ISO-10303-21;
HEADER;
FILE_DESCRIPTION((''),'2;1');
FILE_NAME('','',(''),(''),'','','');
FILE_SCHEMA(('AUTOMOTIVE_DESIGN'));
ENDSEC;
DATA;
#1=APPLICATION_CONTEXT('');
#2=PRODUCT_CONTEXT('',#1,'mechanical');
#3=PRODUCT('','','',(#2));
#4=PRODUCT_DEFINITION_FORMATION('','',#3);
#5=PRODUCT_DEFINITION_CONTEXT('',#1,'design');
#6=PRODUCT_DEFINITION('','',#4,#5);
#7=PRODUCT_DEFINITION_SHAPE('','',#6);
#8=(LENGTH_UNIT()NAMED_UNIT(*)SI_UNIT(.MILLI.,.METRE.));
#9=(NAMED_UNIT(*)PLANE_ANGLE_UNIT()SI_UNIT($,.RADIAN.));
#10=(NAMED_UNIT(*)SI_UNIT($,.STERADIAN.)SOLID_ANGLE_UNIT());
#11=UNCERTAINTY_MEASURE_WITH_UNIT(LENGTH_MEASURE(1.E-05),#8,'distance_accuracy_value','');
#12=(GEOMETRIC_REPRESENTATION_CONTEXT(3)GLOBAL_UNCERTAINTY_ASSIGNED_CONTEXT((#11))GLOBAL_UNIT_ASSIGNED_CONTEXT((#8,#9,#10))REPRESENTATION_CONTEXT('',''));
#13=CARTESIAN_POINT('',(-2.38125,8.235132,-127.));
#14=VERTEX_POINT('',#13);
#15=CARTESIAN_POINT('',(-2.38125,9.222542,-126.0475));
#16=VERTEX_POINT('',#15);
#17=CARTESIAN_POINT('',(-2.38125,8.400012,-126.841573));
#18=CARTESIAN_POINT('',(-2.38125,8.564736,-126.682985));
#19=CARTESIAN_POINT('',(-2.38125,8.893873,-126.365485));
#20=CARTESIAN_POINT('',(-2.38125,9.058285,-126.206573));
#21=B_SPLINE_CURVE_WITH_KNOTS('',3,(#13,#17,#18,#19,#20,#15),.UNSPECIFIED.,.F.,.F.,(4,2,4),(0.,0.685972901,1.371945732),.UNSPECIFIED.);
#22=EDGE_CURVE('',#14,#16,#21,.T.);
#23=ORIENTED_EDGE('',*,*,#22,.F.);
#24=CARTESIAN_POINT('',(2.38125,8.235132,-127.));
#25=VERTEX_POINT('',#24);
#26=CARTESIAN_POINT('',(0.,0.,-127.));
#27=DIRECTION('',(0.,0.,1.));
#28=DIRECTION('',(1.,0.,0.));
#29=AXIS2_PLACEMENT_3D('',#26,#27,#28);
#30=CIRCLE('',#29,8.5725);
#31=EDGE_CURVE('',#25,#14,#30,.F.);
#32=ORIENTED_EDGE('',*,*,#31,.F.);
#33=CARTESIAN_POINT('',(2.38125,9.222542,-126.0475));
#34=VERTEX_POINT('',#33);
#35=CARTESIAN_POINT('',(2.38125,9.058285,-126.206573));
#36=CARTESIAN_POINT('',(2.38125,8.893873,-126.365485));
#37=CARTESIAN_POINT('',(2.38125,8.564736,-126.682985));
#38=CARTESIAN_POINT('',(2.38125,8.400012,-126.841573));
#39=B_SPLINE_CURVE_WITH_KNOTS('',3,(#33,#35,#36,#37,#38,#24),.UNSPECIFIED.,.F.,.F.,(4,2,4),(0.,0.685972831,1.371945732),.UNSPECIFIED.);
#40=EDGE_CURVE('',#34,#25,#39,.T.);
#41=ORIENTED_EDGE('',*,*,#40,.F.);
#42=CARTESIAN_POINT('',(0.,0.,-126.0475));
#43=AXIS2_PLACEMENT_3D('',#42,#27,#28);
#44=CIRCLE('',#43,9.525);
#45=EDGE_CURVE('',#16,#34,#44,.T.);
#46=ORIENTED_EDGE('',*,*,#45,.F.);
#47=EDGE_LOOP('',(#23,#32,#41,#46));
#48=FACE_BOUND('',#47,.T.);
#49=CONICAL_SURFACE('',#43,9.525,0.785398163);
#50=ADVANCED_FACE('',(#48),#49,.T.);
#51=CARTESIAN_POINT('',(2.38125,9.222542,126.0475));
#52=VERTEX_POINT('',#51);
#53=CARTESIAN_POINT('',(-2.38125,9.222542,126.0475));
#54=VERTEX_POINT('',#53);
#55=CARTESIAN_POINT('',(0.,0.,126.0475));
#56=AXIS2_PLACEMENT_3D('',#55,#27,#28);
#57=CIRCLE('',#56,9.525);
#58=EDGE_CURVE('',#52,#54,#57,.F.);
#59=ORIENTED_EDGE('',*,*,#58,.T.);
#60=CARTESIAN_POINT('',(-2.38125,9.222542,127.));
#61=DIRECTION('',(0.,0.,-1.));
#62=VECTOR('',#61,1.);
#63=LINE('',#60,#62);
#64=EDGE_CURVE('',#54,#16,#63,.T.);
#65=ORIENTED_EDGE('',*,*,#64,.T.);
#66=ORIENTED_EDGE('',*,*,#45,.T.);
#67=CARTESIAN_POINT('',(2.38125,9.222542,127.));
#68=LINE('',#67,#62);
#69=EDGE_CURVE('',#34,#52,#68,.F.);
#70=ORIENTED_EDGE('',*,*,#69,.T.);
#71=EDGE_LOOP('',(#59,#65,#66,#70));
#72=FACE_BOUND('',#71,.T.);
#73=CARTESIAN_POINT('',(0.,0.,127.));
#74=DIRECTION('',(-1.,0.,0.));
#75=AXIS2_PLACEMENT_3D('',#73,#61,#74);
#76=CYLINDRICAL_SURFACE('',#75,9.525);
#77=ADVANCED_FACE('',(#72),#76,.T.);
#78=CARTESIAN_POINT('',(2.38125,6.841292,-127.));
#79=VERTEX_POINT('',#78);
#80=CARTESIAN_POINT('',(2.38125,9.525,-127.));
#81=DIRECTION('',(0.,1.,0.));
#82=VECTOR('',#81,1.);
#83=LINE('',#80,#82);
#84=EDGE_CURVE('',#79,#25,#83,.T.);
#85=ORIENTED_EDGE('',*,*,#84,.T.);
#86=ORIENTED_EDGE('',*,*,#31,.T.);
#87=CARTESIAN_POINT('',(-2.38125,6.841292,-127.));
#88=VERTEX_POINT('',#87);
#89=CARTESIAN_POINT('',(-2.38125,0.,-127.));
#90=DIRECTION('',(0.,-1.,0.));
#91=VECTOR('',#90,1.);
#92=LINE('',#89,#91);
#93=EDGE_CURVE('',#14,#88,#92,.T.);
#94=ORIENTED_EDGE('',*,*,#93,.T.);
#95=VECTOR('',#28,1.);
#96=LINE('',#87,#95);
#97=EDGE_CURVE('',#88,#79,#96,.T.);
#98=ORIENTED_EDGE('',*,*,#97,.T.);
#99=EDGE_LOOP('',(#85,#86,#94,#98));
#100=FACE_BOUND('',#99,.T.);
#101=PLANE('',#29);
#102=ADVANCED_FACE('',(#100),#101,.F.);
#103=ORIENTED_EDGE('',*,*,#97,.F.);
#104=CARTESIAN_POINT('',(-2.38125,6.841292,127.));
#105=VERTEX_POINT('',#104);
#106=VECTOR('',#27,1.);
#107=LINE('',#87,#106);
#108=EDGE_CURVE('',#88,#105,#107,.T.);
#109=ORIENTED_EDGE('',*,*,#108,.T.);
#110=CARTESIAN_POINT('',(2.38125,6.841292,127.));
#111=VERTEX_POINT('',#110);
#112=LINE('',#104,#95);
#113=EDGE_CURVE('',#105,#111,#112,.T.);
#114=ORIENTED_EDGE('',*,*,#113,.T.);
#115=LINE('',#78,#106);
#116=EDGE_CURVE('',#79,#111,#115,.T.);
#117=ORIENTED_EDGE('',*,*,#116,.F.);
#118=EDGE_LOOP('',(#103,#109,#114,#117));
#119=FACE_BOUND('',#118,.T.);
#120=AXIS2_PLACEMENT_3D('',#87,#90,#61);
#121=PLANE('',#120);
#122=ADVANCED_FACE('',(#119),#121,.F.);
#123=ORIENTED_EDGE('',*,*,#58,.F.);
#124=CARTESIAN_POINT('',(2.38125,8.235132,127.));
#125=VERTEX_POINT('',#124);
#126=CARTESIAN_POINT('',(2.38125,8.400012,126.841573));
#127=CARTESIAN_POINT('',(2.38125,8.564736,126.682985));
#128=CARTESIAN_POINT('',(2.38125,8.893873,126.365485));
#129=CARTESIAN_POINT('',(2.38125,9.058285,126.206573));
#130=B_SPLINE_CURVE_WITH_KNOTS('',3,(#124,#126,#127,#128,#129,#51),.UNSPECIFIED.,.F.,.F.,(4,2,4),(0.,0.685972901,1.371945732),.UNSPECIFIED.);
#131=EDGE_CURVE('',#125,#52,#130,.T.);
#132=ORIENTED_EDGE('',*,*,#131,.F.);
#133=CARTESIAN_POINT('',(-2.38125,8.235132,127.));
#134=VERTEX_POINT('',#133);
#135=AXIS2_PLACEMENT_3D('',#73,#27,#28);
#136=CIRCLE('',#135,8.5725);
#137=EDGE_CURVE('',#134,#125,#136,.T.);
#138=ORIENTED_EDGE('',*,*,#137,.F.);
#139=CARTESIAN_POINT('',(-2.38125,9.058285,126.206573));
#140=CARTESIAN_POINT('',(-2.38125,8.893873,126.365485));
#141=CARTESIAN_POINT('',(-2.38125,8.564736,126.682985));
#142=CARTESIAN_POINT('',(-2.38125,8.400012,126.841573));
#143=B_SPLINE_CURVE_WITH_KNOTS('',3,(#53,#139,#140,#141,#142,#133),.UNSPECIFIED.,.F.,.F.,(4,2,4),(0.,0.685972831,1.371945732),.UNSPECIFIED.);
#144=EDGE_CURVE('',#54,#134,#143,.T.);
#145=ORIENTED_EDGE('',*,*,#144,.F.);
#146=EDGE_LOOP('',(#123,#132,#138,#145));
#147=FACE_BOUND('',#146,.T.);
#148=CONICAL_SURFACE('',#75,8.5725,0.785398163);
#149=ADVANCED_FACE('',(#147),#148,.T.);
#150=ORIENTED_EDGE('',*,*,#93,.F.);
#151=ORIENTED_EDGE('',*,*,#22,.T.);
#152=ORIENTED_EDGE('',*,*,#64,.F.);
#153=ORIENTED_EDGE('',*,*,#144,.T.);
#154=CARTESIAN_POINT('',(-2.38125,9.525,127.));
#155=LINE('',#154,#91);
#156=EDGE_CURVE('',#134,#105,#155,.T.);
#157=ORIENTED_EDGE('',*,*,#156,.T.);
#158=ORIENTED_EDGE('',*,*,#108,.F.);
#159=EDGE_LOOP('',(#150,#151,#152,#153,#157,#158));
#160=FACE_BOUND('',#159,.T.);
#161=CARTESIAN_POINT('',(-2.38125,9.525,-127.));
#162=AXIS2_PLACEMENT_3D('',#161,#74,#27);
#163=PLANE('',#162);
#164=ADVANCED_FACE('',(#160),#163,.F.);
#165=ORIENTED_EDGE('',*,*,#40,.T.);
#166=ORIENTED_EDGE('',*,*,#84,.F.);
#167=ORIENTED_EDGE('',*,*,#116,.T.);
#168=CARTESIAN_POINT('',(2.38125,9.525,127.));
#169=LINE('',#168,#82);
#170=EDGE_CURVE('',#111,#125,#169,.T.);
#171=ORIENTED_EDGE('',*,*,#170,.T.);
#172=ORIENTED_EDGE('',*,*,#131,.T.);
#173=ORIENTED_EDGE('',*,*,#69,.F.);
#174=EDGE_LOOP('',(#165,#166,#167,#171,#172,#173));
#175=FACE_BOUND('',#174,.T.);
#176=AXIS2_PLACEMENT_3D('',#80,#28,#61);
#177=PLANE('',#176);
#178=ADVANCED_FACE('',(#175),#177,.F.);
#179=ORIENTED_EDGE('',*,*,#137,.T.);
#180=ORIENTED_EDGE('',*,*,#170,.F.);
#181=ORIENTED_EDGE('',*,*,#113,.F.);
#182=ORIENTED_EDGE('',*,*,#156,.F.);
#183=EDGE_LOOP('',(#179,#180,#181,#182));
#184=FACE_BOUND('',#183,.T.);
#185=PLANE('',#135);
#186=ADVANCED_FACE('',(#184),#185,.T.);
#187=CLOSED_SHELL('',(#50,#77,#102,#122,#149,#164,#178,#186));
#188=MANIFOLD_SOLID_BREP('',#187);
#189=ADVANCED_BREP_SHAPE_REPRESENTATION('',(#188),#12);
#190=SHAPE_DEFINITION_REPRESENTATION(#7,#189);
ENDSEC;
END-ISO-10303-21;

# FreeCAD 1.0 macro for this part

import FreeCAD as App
import Part
import Sketcher

V = App.Vector
Q = App.Units.Quantity


def edges_at(feature, points):
    """Names of the edges that pass closest to the given points."""
    edges = feature.Shape.Edges
    near = lambda p: min(range(len(edges)), key=lambda i: edges[i].distToShape(Part.Vertex(*p))[0])
    return sorted({f"Edge{near(p) + 1}" for p in points})


def add_polygon(sketch, points):
    """Adds a closed chain of lines whose ends are joined by coincident constraints."""
    first, n = sketch.GeometryCount, len(points)
    for a, b in zip(points, points[1:] + points[:1]):
        sketch.addGeometry(Part.LineSegment(App.Vector(*a, 0), App.Vector(*b, 0)), False)
    for i in range(n):
        sketch.addConstraint(Sketcher.Constraint("Coincident", first + i, 2, first + (i + 1) % n, 1))

doc = App.newDocument("Part")
params = doc.addObject("Spreadsheet::Sheet", "Params")
for row, (alias, value) in enumerate([
    ("sketch1_diameter", "0.75 in"),
    ("pad1_length", "5 in"),
    ("pad1_length2", "5 in"),
    ("sketch2_width", "0.1875 in"),
    ("chamfer_size", "0.0375 in"),
], start=1):
    params.set(f"A{row}", alias)
    params.set(f"B{row}", "=" + value)
    params.setAlias(f"B{row}", alias)

body = doc.addObject("PartDesign::Body", "Body")

sketch1 = body.newObject("Sketcher::SketchObject", "Sketch")
sketch1.AttachmentSupport = (doc.getObject("XY_Plane"), [""])
sketch1.MapMode = "FlatFace"
sketch1.addGeometry(Part.Circle(V(0, 0, 0), V(0, 0, 1), 9.525), False)
sketch1.addConstraint([
    Sketcher.Constraint("Coincident", 0, 3, -1, 1),
    Sketcher.Constraint("Diameter", 0, Q("0.75 in")),
])
sketch1.setExpression("Constraints[1]", "Params.sketch1_diameter")
pad1 = body.newObject("PartDesign::Pad", "Pad")
pad1.Profile = sketch1
pad1.Type = "TwoLengths"
pad1.setExpression("Length", "Params.pad1_length")
pad1.setExpression("Length2", "Params.pad1_length2")

sketch2 = body.newObject("Sketcher::SketchObject", "Sketch001")
sketch2.AttachmentSupport = (doc.getObject("XY_Plane"), [""])
sketch2.MapMode = "FlatFace"
add_polygon(sketch2, [(-2.38125, 9.525), (-2.38125, 6.841292), (2.38125, 6.841292), (2.38125, 9.525)])
sketch2.addConstraint([
    Sketcher.Constraint("Vertical", 0),
    Sketcher.Constraint("Horizontal", 1),
    Sketcher.Constraint("Vertical", 2),
    Sketcher.Constraint("Horizontal", 3),
    Sketcher.Constraint("DistanceX", 1, 1, 1, 2, Q("0.1875 in")),
    Sketcher.Constraint("DistanceX", 0, 2, -1, 1, Q("0.09375 in")),
    Sketcher.Constraint("DistanceY", -1, 1, 2, 2, Q("0.375 in")),
    Sketcher.Constraint("DistanceY", 0, 2, 0, 1, Q("2.683708 mm")),
])
sketch2.setExpression("Constraints[8]", "Params.sketch2_width")
pocket1 = body.newObject("PartDesign::Pocket", "Pocket")
pocket1.Profile = sketch2
pocket1.Type = "ThroughAll"
pocket1.Midplane = True
doc.recompute()

chamfer = body.newObject("PartDesign::Chamfer", "Chamfer")
chamfer.Base = (pocket1, edges_at(pocket1, [(0, -9.525, 127), (0, -9.525, -127)]))
chamfer.setExpression("Size", "Params.chamfer_size")

doc.recompute()
